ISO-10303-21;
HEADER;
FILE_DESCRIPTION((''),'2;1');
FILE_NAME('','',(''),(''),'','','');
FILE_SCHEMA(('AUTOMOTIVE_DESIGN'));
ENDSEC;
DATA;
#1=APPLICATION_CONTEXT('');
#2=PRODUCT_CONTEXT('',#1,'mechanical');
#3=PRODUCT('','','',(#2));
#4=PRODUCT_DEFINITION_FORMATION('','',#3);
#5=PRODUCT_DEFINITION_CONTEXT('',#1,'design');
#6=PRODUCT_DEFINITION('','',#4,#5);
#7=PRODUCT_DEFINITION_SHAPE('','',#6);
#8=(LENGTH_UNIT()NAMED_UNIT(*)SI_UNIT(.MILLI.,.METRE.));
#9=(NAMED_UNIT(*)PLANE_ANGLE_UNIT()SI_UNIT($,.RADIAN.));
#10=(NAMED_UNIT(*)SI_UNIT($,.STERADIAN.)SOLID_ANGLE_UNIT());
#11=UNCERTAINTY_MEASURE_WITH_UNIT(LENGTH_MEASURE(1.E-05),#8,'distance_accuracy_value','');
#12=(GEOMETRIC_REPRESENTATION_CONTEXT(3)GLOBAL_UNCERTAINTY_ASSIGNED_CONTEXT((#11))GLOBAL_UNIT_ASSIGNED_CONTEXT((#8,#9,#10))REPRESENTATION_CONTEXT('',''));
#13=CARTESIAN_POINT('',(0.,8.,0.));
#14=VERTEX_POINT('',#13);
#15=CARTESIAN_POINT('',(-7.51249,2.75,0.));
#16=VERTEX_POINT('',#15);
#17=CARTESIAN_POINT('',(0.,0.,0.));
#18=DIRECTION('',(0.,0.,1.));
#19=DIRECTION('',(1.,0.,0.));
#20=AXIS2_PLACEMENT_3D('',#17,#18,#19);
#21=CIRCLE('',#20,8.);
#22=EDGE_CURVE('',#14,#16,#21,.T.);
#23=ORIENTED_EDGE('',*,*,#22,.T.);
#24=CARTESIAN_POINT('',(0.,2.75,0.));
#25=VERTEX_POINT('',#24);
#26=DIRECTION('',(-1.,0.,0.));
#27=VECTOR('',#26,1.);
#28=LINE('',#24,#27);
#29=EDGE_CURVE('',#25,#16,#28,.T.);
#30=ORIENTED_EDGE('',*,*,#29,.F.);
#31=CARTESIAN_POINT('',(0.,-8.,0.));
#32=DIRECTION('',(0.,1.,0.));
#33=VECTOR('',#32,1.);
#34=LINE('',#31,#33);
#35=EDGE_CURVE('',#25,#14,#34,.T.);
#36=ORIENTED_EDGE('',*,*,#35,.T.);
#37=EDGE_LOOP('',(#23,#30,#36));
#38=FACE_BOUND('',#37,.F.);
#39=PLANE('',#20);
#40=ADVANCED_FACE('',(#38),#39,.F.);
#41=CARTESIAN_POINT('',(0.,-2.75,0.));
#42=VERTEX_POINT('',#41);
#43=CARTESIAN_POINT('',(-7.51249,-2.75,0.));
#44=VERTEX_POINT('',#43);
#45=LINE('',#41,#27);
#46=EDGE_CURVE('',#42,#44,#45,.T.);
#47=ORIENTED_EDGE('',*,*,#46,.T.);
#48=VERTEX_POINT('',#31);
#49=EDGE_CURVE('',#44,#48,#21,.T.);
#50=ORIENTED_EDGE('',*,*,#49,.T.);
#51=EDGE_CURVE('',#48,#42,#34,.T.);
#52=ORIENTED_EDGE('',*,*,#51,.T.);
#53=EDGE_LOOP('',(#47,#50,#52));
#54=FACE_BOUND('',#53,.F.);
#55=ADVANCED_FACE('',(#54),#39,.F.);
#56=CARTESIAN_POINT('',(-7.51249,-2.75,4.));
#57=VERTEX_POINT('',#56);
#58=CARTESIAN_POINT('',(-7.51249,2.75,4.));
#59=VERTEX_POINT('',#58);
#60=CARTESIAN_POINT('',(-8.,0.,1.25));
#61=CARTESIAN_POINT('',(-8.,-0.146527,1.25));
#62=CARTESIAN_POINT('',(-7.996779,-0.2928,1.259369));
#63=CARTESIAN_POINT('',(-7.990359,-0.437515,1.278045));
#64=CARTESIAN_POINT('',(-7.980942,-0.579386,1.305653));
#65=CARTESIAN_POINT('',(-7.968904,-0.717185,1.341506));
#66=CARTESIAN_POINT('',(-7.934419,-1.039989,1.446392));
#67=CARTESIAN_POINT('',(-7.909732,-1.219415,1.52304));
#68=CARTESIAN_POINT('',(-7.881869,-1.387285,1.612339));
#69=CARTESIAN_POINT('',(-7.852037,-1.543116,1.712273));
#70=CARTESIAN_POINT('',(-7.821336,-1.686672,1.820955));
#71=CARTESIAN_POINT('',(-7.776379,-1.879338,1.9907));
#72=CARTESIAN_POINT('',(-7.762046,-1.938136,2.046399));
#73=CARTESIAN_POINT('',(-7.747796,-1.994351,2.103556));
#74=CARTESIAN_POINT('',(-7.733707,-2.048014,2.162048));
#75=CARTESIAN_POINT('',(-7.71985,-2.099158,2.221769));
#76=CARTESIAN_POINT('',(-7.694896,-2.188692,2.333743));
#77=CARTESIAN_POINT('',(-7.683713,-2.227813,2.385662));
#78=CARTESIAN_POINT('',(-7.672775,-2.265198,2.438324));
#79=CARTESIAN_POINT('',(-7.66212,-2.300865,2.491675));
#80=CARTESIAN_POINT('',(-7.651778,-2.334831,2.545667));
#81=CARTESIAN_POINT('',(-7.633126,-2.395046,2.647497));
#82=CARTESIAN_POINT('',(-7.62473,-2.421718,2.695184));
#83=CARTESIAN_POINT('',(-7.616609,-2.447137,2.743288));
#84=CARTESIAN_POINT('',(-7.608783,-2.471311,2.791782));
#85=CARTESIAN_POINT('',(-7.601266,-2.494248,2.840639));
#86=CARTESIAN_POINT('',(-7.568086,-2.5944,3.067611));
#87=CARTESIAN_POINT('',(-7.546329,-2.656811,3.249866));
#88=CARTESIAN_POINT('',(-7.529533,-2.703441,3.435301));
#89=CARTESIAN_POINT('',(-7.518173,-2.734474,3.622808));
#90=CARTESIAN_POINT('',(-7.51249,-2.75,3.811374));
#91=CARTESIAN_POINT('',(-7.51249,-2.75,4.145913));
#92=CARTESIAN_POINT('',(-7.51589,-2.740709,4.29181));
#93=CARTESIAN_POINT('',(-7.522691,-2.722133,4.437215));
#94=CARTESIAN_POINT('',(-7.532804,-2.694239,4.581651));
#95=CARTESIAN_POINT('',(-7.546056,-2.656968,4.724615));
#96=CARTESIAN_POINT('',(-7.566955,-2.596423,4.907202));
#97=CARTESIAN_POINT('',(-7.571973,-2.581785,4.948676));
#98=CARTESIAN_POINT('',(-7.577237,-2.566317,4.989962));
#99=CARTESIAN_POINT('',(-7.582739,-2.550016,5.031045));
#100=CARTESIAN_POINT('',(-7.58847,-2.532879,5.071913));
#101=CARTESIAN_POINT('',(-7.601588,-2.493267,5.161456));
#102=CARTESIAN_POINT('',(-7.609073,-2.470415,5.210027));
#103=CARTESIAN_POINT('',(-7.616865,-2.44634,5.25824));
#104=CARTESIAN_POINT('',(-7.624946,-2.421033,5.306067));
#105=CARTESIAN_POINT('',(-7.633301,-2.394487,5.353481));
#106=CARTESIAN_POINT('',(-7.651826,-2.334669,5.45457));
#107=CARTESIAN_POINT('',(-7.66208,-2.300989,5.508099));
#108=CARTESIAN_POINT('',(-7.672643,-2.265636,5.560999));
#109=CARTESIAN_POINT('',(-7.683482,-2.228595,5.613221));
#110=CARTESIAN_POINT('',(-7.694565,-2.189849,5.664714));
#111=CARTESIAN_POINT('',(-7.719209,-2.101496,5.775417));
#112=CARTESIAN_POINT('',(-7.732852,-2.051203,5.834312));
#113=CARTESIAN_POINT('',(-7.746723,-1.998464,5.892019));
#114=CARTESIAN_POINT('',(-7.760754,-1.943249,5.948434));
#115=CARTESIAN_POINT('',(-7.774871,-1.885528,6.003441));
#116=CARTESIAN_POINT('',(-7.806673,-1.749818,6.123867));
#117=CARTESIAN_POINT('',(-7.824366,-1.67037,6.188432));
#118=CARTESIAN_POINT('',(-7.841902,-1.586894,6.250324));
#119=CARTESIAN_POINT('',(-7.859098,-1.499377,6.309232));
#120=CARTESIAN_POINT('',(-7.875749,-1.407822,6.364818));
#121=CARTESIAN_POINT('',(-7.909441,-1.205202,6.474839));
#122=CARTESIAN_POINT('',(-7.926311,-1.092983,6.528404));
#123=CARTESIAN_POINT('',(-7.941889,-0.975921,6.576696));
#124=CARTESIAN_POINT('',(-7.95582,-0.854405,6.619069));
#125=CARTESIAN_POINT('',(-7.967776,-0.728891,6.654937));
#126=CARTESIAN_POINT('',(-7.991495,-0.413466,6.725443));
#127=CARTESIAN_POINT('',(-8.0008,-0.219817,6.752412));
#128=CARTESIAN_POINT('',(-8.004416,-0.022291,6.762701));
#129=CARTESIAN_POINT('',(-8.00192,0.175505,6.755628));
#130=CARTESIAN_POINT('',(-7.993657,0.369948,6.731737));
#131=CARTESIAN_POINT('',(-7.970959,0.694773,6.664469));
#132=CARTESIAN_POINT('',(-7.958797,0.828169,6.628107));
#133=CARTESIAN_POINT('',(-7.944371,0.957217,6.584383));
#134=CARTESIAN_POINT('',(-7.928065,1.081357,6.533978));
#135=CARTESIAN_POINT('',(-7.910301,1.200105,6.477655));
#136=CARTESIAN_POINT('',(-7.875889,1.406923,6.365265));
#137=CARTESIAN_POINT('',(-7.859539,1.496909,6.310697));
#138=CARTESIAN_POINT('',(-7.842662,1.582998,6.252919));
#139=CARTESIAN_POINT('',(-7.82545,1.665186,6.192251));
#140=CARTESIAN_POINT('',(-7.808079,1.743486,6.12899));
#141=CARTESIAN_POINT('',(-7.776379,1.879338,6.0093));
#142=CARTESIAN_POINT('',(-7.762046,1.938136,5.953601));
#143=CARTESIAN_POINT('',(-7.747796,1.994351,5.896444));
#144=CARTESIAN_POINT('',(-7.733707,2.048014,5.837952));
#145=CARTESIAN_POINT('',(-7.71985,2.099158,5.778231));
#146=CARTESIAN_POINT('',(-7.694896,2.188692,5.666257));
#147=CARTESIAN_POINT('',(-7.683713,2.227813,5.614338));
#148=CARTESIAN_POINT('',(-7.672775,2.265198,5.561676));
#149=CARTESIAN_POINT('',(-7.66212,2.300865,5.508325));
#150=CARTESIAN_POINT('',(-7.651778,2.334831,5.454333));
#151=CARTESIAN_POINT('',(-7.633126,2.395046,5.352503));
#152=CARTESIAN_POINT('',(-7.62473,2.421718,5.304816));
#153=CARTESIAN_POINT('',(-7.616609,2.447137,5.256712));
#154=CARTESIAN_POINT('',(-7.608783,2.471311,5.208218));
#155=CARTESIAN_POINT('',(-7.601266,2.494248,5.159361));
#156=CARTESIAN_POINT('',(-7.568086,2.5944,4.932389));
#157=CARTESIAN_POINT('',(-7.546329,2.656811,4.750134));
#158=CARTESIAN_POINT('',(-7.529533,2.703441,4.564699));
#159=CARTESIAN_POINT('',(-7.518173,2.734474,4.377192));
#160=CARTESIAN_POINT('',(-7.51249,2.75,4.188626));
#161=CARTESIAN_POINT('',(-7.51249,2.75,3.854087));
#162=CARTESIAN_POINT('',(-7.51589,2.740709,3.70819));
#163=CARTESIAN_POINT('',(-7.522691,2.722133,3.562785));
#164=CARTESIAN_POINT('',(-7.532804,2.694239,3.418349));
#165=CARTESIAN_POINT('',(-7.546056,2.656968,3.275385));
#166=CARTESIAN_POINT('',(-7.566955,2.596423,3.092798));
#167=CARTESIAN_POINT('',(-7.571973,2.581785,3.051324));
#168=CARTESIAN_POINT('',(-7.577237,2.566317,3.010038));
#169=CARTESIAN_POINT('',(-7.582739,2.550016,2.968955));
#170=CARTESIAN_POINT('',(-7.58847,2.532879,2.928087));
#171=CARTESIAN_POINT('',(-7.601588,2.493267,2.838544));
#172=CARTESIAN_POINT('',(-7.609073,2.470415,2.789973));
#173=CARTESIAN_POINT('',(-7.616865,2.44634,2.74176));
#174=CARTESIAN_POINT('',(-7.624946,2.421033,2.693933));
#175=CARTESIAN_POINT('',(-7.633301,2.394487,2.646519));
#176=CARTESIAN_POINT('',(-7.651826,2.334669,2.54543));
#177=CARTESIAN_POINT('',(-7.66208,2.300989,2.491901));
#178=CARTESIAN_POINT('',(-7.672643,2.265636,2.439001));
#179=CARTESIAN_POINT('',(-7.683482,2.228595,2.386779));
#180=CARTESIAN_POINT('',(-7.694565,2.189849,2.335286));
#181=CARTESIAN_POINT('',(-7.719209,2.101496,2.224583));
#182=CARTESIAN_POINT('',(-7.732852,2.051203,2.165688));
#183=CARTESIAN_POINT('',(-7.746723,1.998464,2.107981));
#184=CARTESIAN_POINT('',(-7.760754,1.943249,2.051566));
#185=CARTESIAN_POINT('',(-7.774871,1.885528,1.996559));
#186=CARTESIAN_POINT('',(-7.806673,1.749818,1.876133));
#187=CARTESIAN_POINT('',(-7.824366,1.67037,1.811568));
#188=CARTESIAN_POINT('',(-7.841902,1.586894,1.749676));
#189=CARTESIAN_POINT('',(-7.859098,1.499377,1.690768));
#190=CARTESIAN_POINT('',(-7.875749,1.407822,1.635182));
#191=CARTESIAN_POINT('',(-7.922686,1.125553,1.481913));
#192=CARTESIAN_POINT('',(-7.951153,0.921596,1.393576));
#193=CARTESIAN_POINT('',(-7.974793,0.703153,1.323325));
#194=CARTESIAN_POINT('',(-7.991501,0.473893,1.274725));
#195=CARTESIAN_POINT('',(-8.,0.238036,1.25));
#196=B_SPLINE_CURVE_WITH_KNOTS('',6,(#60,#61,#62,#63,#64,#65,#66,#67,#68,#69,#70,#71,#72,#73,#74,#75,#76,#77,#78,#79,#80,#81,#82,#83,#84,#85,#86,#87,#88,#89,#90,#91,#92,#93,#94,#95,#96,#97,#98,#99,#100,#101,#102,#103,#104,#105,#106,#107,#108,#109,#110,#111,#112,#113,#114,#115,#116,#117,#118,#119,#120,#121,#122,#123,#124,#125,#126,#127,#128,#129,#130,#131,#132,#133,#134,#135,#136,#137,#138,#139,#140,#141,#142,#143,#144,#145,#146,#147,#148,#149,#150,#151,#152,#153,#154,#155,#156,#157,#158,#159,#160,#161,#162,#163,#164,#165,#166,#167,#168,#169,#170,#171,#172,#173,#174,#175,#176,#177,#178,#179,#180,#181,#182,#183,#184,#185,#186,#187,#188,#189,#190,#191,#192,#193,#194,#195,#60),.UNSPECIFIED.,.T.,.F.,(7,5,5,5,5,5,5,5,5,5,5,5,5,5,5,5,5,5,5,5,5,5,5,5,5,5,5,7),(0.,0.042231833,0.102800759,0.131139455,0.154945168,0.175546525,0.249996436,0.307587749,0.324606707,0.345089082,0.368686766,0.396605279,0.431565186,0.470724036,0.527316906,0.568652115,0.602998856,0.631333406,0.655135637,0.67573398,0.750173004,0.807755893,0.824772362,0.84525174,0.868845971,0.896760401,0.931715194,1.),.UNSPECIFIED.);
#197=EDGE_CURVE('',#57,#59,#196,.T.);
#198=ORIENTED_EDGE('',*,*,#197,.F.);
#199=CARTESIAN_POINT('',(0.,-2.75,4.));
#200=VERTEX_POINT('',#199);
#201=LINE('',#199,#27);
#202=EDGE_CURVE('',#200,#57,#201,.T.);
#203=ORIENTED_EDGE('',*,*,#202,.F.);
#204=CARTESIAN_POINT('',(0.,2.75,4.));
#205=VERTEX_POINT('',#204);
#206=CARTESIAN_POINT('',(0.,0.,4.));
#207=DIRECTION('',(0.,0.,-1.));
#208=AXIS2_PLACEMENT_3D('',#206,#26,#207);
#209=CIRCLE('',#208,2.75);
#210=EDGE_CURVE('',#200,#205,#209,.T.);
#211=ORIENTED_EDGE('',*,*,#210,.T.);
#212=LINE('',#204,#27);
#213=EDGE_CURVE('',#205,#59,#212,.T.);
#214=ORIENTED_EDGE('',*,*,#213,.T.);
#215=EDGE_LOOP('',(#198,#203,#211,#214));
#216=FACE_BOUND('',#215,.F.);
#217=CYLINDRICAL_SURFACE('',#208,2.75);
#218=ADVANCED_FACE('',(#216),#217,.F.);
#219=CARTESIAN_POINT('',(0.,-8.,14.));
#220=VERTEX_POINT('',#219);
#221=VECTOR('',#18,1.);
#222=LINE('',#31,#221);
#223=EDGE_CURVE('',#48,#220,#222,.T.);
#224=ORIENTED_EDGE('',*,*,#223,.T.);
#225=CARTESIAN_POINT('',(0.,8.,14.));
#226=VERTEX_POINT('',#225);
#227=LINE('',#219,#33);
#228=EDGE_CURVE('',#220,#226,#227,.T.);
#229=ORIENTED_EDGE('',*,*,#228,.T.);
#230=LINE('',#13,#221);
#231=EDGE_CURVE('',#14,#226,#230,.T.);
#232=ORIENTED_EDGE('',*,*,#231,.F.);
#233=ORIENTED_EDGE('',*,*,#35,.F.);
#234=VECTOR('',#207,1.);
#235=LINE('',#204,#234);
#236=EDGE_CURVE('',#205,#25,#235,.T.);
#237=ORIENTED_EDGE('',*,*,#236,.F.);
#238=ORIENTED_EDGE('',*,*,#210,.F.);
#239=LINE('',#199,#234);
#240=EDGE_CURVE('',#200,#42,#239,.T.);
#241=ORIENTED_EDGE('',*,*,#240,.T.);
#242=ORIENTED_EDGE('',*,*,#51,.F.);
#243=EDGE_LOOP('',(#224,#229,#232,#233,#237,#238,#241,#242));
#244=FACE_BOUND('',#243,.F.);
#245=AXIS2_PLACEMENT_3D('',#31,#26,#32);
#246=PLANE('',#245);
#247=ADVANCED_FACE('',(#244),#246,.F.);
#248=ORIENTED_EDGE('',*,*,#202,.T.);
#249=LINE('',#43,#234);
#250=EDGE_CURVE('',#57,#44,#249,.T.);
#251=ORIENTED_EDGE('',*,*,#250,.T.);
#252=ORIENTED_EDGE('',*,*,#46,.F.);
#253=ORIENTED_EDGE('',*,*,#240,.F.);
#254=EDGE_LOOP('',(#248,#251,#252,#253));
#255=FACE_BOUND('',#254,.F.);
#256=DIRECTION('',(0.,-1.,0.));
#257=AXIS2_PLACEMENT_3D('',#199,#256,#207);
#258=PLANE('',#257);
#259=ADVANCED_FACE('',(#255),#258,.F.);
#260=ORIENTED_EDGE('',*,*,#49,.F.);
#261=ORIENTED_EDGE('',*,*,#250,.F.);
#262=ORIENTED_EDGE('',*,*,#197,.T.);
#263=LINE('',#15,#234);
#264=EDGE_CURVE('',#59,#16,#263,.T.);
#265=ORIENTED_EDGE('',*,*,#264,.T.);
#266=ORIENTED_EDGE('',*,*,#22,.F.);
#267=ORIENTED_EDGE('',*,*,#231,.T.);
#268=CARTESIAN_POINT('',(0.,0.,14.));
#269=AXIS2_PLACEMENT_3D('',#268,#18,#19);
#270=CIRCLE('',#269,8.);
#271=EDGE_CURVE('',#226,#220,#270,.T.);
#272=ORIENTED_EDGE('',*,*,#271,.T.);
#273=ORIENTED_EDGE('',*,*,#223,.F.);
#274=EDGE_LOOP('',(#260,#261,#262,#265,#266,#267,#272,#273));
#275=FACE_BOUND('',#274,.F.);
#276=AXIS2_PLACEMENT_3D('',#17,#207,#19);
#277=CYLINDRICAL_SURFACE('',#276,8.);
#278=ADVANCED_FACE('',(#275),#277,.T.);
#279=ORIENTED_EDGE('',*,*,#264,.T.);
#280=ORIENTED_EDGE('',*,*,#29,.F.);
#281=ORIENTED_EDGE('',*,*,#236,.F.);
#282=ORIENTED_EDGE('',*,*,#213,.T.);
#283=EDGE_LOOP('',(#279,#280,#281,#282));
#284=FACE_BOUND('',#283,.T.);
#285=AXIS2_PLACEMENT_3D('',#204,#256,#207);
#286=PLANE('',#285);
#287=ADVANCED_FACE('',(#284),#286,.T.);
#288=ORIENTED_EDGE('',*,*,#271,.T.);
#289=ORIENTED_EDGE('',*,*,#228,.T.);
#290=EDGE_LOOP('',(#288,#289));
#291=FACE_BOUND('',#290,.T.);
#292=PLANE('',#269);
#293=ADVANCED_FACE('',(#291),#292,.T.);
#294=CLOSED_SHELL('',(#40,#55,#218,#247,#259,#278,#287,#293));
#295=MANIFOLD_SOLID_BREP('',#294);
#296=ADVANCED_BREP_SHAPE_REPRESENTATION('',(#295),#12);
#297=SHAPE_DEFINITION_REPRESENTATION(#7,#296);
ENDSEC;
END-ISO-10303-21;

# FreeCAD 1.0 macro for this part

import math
import FreeCAD as App
import Part
import Sketcher

doc = App.newDocument("Part")
params = doc.addObject("Spreadsheet::Sheet", "Params")
for row, (alias, value) in enumerate([
    ("sketch1_radius", "8 mm"),
    ("pad1_length", "14 mm"),
    ("sketch2_diameter", "5.5 mm"),
    ("hole_diameter", "5.5 mm"),
    ("sketch3_height", "4 mm"),
    ("sketch3_radius", "2.75 mm"),
], start=1):
    params.set(f"A{row}", alias)
    params.set(f"B{row}", "=" + value)
    params.setAlias(f"B{row}", alias)

body = doc.addObject("PartDesign::Body", "Body")

# Sketch on XY plane
sketch1 = doc.addObject("Sketcher::SketchObject", "Sketch")
body.addObject(sketch1)
sketch1.AttachmentSupport = (doc.XY_Plane, [""])
sketch1.MapMode = "FlatFace"
sketch1.addGeometry([
    Part.LineSegment(App.Vector(0, -8, 0), App.Vector(0, 8, 0)),
    Part.ArcOfCircle(Part.Circle(App.Vector(0, 0, 0), App.Vector(0, 0, 1), 8), math.radians(90), math.radians(270)),
], False)
sketch1.addConstraint([
    Sketcher.Constraint("Coincident", 0, 1, 1, 2),
    Sketcher.Constraint("Coincident", 1, 1, 0, 2),
    Sketcher.Constraint("Vertical", 0),
    Sketcher.Constraint("Coincident", 1, 3, -1, 1),
    Sketcher.Constraint("PointOnObject", 0, 1, -2),
    Sketcher.Constraint("Radius", 1, 8.0),
])
sketch1.setExpression("Constraints[5]", "Params.sketch1_radius")
pad1 = doc.addObject("PartDesign::Pad", "Pad")
body.addObject(pad1)
pad1.Profile = sketch1
pad1.setExpression("Length", "Params.pad1_length")

# Sketch on YZ plane
sketch2 = doc.addObject("Sketcher::SketchObject", "Sketch001")
body.addObject(sketch2)
sketch2.AttachmentSupport = (doc.YZ_Plane, [""])
sketch2.MapMode = "FlatFace"
sketch2.addGeometry(Part.Circle(App.Vector(0, 4, 0), App.Vector(0, 0, 1), 2.8), False)
sketch2.addConstraint([
    Sketcher.Constraint("PointOnObject", 0, 3, -2),
    Sketcher.Constraint("Diameter", 0, 5.5),
    Sketcher.Constraint("DistanceY", -1, 1, 0, 3, 4.0),
])
sketch2.setExpression("Constraints[1]", "Params.sketch2_diameter")
doc.recompute()
hole = doc.addObject("PartDesign::Hole", "Hole")
body.addObject(hole)
hole.Profile = sketch2
hole.ThreadType = "None"
hole.setExpression("Diameter", "Params.hole_diameter")
hole.DepthType = "ThroughAll"

# Sketch on YZ plane
sketch3 = doc.addObject("Sketcher::SketchObject", "Sketch002")
body.addObject(sketch3)
sketch3.AttachmentSupport = (doc.YZ_Plane, [""])
sketch3.MapMode = "FlatFace"
sketch3.addGeometry([
    Part.ArcOfCircle(Part.Circle(App.Vector(0, 4, 0), App.Vector(0, 0, 1), 2.8), math.radians(180), math.radians(360)),
    Part.LineSegment(App.Vector(-2.8, 4, 0), App.Vector(-2.8, 0, 0)),
    Part.LineSegment(App.Vector(-2.8, 0, 0), App.Vector(2.8, 0, 0)),
    Part.LineSegment(App.Vector(2.8, 0, 0), App.Vector(2.8, 4, 0)),
], False)
sketch3.addConstraint([
    Sketcher.Constraint("Tangent", 0, 1, 1, 1),
    Sketcher.Constraint("Coincident", 1, 2, 2, 1),
    Sketcher.Constraint("Coincident", 2, 2, 3, 1),
    Sketcher.Constraint("Tangent", 3, 2, 0, 2),
    Sketcher.Constraint("Vertical", 1),
    Sketcher.Constraint("Horizontal", 2),
    Sketcher.Constraint("Vertical", 3),
    Sketcher.Constraint("Symmetric", 1, 2, 2, 2, -1, 1),
    Sketcher.Constraint("DistanceY", 1, 2, 1, 1, 4.0),
    Sketcher.Constraint("Radius", 0, 2.75),
])
sketch3.setExpression("Constraints[8]", "Params.sketch3_height")
sketch3.setExpression("Constraints[9]", "Params.sketch3_radius")
pocket1 = doc.addObject("PartDesign::Pocket", "Pocket")
body.addObject(pocket1)
pocket1.Profile = sketch3
pocket1.Type = "ThroughAll"

doc.recompute()
